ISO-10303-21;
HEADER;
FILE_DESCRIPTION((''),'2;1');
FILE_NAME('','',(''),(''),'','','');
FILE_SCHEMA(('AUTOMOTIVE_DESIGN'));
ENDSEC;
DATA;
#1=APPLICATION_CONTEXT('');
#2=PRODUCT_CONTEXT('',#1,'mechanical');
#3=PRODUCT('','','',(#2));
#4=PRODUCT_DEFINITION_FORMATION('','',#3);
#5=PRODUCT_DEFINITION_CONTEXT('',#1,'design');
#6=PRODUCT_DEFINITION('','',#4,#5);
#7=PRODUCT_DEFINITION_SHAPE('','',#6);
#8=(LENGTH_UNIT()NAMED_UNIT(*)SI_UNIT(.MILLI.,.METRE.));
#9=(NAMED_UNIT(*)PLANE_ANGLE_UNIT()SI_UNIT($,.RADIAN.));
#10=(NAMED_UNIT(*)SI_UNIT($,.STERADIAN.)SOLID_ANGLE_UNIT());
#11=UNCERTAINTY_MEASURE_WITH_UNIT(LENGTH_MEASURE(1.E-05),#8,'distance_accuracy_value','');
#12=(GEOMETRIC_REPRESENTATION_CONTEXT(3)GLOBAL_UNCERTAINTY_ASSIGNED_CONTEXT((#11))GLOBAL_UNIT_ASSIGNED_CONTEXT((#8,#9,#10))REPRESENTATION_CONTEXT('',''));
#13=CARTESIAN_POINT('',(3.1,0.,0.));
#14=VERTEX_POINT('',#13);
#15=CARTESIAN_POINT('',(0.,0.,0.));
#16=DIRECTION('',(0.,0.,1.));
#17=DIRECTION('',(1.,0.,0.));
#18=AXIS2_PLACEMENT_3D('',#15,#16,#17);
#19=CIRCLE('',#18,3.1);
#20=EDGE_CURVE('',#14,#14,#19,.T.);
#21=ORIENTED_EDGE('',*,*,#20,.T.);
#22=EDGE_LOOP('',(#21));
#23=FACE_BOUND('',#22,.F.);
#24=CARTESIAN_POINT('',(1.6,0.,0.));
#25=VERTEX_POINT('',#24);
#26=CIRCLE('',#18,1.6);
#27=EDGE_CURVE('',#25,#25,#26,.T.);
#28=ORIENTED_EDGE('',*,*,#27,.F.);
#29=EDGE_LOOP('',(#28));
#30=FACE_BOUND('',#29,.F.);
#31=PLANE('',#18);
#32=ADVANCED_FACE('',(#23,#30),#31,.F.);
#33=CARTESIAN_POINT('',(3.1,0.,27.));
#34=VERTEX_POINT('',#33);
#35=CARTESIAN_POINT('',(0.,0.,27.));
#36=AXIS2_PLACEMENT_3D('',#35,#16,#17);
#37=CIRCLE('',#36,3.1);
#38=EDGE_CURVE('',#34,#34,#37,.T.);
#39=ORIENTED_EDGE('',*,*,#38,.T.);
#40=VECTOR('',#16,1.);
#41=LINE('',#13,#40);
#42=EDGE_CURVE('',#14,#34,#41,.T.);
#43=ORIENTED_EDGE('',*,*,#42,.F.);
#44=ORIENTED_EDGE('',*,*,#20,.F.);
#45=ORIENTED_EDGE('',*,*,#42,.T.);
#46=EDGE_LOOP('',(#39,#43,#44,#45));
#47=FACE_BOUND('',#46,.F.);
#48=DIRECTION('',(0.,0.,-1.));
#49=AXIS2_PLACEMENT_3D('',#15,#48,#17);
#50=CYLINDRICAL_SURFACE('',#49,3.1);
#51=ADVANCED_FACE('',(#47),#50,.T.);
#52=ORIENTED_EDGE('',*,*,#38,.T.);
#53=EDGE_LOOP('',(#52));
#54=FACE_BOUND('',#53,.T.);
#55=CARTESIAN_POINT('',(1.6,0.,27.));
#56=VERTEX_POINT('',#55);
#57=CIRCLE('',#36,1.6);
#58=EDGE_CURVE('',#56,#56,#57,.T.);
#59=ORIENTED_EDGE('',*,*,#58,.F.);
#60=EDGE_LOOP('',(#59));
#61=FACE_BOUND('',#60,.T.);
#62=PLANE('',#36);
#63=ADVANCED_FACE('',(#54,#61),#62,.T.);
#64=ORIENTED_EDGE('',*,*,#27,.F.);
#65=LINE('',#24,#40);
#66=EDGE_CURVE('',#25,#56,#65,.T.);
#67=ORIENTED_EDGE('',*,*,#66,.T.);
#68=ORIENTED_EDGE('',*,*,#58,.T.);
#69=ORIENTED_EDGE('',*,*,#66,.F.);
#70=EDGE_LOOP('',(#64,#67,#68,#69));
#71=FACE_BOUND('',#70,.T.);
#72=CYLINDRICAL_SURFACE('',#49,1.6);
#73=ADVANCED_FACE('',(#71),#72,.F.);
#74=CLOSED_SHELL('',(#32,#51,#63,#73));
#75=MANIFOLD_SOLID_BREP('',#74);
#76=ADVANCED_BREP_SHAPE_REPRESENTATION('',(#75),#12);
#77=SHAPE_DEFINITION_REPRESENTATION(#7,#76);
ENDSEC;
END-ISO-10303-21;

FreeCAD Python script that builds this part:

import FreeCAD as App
import Part
import Sketcher

V = App.Vector

doc = App.newDocument("Part")
body = doc.addObject("PartDesign::Body", "Body")

sketch1 = doc.addObject("Sketcher::SketchObject", "Sketch")
body.addObject(sketch1)
sketch1.AttachmentSupport = (doc.XY_Plane, [""])
sketch1.MapMode = "FlatFace"
sketch1.addGeometry(Part.Circle(V(0, 0, 0), V(0, 0, 1), 3.1), False)
sketch1.addGeometry(Part.Circle(V(0, 0, 0), V(0, 0, 1), 1.6), False)
sketch1.addConstraint(Sketcher.Constraint("Coincident", 0, 3, -1, 1))
sketch1.addConstraint(Sketcher.Constraint("Coincident", 1, 3, -1, 1))
sketch1.addConstraint(Sketcher.Constraint("Diameter", 0, 6.2))
sketch1.addConstraint(Sketcher.Constraint("Diameter", 1, 3.2))
pad1 = doc.addObject("PartDesign::Pad", "Pad")
body.addObject(pad1)
pad1.Profile = sketch1
pad1.Length = 27

doc.recompute()
